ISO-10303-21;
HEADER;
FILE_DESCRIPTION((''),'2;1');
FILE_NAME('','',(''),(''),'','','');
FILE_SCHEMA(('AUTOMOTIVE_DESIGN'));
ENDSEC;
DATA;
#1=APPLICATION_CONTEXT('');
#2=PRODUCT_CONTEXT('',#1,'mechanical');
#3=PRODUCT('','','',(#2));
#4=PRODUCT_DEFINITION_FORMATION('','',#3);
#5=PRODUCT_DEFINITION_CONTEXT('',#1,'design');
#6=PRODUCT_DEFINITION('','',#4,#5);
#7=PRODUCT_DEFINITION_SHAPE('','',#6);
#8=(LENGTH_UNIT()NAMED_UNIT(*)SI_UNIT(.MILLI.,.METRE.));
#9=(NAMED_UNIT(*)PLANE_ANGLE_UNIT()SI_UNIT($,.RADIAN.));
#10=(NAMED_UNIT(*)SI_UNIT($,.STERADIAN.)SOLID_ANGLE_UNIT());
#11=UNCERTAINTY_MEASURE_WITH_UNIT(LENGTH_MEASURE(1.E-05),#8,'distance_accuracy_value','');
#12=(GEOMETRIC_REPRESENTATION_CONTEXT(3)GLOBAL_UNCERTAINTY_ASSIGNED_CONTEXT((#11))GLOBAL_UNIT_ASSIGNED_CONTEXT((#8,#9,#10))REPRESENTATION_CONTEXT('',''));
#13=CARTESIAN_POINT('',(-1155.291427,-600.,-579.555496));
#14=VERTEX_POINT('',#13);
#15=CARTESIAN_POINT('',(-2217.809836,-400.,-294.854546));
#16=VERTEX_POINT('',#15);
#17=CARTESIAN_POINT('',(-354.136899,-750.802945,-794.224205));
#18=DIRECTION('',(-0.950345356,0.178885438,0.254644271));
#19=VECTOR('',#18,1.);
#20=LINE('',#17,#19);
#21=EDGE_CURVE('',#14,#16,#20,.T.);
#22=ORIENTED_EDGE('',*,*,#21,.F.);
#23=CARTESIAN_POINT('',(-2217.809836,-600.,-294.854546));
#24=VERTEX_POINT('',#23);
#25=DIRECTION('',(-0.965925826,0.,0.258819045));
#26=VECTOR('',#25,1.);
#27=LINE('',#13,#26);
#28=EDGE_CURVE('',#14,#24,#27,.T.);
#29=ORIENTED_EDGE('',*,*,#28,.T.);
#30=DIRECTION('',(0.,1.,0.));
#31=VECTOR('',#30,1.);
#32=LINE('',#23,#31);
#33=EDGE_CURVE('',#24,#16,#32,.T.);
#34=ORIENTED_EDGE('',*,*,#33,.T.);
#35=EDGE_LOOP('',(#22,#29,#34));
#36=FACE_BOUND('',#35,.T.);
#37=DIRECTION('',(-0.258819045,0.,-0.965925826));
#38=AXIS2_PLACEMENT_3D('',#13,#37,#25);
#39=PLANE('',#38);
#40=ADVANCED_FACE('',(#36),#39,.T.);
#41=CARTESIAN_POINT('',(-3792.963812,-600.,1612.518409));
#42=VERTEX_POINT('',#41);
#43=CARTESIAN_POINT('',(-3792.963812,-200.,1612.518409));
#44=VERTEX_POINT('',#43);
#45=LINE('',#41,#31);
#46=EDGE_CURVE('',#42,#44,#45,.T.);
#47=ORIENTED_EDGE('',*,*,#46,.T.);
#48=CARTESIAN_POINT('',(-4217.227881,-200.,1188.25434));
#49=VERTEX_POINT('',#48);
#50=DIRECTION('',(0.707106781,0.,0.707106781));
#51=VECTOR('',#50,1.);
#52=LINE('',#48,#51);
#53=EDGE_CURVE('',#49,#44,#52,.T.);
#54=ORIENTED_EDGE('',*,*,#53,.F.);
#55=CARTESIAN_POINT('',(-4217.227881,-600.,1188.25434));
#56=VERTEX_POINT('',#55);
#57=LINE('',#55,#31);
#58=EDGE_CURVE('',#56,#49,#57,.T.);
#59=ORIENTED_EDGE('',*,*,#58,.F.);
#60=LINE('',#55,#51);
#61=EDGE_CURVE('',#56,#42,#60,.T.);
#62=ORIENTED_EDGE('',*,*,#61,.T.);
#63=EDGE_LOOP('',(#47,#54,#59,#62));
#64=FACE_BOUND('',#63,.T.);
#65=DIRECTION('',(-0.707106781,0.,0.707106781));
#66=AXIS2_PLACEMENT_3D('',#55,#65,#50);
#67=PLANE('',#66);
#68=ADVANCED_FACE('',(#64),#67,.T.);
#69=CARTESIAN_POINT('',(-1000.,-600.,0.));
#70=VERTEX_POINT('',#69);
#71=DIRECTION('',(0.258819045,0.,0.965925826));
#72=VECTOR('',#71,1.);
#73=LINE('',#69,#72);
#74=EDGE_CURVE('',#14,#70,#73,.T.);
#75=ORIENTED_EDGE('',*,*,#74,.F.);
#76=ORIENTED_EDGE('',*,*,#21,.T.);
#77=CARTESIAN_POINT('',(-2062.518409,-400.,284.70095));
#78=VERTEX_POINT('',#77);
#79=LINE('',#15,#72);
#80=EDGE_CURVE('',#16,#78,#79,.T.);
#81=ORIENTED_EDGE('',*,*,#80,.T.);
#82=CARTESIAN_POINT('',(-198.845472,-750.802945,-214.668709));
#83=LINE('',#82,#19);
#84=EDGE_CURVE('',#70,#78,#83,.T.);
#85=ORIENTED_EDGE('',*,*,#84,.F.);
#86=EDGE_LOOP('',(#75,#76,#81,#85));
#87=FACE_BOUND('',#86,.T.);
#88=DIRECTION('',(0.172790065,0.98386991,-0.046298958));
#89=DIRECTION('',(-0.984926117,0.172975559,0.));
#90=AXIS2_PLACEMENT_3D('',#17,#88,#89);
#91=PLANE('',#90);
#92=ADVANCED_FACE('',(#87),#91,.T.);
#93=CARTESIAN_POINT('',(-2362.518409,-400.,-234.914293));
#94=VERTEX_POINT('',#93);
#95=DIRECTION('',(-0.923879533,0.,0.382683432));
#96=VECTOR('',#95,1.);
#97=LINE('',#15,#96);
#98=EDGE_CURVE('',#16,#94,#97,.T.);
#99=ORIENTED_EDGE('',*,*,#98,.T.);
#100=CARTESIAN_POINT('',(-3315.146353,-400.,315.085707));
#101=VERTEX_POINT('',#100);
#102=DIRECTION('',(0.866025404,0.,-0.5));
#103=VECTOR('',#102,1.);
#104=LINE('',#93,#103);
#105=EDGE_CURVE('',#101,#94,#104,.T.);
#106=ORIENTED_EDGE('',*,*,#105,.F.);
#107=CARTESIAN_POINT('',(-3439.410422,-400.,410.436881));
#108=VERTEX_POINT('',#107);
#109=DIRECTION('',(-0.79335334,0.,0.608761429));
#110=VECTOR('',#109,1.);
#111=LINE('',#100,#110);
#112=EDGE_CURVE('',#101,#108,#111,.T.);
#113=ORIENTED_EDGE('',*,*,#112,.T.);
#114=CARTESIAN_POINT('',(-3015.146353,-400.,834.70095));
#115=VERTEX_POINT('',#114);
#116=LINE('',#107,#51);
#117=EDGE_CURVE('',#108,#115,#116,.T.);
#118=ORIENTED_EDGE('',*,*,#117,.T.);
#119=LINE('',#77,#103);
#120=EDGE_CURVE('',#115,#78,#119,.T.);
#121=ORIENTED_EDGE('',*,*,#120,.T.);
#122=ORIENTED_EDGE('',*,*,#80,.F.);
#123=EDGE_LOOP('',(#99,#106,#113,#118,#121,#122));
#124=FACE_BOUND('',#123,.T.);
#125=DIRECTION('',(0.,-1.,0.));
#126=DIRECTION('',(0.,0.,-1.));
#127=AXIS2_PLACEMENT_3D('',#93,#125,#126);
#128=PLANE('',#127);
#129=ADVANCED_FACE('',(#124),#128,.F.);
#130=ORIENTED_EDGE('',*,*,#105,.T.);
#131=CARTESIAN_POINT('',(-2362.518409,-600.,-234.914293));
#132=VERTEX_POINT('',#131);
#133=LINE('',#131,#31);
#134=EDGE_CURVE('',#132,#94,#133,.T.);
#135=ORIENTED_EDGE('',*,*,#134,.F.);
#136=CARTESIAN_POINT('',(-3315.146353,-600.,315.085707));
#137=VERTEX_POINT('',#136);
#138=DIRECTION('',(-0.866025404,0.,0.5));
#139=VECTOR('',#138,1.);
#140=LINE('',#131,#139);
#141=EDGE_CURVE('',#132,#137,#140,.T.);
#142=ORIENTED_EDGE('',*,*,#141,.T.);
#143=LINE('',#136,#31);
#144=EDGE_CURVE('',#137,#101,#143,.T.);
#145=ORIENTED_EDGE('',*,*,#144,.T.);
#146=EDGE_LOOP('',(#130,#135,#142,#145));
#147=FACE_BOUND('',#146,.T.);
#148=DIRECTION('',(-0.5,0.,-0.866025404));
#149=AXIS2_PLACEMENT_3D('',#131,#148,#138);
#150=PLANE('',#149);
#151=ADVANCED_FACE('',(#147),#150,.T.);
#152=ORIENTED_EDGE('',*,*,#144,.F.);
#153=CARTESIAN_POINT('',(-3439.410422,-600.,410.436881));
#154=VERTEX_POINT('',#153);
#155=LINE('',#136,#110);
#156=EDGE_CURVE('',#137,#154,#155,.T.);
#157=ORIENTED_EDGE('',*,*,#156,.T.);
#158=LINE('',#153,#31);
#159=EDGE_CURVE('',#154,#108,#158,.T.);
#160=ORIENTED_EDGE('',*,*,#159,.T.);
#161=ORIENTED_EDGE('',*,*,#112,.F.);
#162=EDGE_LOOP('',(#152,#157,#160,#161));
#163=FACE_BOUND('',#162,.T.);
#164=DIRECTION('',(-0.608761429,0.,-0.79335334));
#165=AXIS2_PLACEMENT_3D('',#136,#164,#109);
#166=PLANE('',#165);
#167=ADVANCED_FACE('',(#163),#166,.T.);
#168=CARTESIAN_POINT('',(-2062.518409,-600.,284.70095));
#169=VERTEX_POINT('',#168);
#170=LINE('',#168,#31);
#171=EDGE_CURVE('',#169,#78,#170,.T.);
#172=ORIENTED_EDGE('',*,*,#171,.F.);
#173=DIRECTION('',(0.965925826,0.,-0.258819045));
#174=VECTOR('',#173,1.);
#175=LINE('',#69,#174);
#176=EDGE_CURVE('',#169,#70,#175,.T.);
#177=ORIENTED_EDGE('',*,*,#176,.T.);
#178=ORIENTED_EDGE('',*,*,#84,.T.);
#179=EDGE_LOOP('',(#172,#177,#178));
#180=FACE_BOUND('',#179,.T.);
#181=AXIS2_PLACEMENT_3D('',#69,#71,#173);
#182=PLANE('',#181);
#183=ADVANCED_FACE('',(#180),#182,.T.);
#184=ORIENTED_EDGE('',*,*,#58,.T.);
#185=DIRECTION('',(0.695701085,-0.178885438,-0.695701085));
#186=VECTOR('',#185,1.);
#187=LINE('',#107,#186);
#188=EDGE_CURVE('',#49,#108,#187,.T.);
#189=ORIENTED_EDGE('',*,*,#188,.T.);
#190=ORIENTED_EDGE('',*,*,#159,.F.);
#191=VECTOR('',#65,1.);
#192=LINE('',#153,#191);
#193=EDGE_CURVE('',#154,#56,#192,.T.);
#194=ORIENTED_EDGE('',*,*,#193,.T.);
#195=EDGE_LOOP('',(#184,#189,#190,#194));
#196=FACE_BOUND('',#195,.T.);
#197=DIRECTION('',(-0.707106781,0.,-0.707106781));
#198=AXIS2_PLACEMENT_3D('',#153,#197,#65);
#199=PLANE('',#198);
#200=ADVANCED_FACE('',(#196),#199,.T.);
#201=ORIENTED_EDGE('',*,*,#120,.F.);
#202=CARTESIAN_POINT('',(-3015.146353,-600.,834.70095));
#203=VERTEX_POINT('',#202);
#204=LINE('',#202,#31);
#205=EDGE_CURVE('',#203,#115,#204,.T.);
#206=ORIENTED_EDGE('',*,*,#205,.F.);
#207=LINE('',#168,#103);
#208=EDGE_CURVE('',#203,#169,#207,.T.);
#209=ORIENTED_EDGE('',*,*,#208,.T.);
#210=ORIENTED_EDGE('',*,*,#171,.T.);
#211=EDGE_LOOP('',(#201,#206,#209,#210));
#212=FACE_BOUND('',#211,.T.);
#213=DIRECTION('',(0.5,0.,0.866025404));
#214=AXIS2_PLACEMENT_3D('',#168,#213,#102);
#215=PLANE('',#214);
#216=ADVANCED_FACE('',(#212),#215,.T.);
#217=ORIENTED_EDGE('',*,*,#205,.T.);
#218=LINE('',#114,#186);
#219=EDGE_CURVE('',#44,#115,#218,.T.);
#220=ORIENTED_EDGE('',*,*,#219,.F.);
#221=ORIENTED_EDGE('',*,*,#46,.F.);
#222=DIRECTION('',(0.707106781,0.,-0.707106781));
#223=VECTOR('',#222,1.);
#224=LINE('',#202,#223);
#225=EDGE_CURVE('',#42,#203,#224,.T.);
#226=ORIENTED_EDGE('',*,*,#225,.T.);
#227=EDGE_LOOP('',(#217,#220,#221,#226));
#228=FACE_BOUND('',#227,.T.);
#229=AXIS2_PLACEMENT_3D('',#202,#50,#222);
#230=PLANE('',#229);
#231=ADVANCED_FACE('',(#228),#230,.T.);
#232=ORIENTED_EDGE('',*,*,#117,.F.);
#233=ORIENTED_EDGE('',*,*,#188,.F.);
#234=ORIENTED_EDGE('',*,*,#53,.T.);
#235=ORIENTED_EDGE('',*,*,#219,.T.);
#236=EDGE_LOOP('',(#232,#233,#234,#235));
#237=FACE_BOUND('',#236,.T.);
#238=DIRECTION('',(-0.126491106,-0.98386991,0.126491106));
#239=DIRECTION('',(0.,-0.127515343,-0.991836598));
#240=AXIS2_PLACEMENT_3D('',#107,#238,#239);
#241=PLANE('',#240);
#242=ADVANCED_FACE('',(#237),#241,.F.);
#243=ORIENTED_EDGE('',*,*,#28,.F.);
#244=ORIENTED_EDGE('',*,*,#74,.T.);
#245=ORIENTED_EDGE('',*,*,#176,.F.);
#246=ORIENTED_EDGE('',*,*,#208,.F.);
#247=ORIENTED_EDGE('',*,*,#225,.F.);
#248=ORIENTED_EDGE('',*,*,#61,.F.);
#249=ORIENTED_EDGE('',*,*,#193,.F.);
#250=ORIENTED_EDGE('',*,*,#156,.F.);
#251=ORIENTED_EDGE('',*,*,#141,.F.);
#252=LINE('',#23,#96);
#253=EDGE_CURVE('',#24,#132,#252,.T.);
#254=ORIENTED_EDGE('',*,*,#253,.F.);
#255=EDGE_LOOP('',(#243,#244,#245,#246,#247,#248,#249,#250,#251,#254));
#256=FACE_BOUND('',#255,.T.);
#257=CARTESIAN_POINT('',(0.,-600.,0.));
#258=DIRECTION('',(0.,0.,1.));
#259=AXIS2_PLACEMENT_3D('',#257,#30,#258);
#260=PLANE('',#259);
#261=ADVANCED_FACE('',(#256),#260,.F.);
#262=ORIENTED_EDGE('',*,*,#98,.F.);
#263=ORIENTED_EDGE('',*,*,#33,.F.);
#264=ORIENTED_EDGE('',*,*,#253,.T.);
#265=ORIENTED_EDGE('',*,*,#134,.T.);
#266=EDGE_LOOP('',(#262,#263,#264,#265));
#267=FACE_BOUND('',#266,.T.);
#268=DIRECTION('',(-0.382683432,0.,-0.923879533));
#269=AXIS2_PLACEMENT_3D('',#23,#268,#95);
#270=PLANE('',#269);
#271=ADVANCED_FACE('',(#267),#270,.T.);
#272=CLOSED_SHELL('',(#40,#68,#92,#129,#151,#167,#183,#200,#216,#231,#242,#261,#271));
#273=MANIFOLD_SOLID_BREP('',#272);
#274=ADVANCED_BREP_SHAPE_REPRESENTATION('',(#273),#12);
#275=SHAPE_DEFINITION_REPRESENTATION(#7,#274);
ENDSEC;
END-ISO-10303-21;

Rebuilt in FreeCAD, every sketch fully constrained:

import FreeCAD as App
import Part
import Sketcher
from FreeCAD import Vector
Q = App.Units.Quantity

doc = App.newDocument("Part")
params = doc.addObject("Spreadsheet::Sheet", "Params")
for row, (alias, value) in enumerate([
    ("sketch1_width", "1000 mm"),
    ("sketch1_height", "600 mm"),
    ("sketch1_length", "1100 mm"),
    ("sketch1_length2", "600 mm"),
    ("pad1_length", "600 mm"),
    ("sketch2_width", "1000 mm"),
    ("sketch2_height", "600 mm"),
    ("sketch2_length", "600 mm"),
    ("pocket1_length", "600 mm"),
    ("sketch3_width", "1099.999999 mm"),
    ("sketch3_height", "599.999999 mm"),
    ("sketch3_height2", "400 mm"),
    ("pocket2_length", "600 mm"),
    ("sketch4_width", "1100 mm"),
    ("sketch4_height", "400 mm"),
    ("pocket3_length", "600 mm"),
    ("sketch5_height", "400 mm"),
    ("pocket4_length", "600 mm"),
    ("sketch6_length", "600 mm"),
    ("pocket5_length", "400 mm"),
    ("sketch7_width", "1099.999999 mm"),
    ("sketch7_height", "400 mm"),
    ("sketch7_height2", "200 mm"),
    ("pocket6_length", "600 mm"),
], start=1):
    params.set(f"A{row}", alias)
    params.set(f"B{row}", "=" + value)
    params.setAlias(f"B{row}", alias)

body = doc.addObject("PartDesign::Body", "Body")

sketch1 = body.newObject("Sketcher::SketchObject", "Sketch")
sketch1.AttachmentSupport = (doc.getObject("XZ_Plane"), [""])
sketch1.MapMode = "FlatFace"
sketch1.addGeometry([
    Part.LineSegment(Vector(-1000, 0, 0), Vector(0, 0, 0)),
    Part.LineSegment(Vector(0, 0, 0), Vector(0, -600, 0)),
    Part.LineSegment(Vector(0, -600, 0), Vector(-1000, -600, 0)),
    Part.LineSegment(Vector(-1000, -600, 0), Vector(-1155.291427, -579.555496, 0)),
    Part.LineSegment(Vector(-1155.291427, -579.555496, 0), Vector(-2217.809836, -294.854546, 0)),
    Part.LineSegment(Vector(-2217.809836, -294.854546, 0), Vector(-2362.518409, -234.914293, 0)),
    Part.LineSegment(Vector(-2362.518409, -234.914293, 0), Vector(-3315.146353, 315.085707, 0)),
    Part.LineSegment(Vector(-3315.146353, 315.085707, 0), Vector(-3439.410422, 410.436881, 0)),
    Part.LineSegment(Vector(-3439.410422, 410.436881, 0), Vector(-4217.227881, 1188.25434, 0)),
    Part.LineSegment(Vector(-4217.227881, 1188.25434, 0), Vector(-3792.963812, 1612.518409, 0)),
    Part.LineSegment(Vector(-3792.963812, 1612.518409, 0), Vector(-3015.146353, 834.70095, 0)),
    Part.LineSegment(Vector(-3015.146353, 834.70095, 0), Vector(-2062.518409, 284.70095, 0)),
    Part.LineSegment(Vector(-2062.518409, 284.70095, 0), Vector(-1000, 0, 0)),
], False)
sketch1.addConstraint([
    Sketcher.Constraint("Coincident", 0, 2, 1, 1),
    Sketcher.Constraint("Coincident", 1, 2, 2, 1),
    Sketcher.Constraint("Coincident", 2, 2, 3, 1),
    Sketcher.Constraint("Coincident", 3, 2, 4, 1),
    Sketcher.Constraint("Coincident", 4, 2, 5, 1),
    Sketcher.Constraint("Coincident", 5, 2, 6, 1),
    Sketcher.Constraint("Coincident", 6, 2, 7, 1),
    Sketcher.Constraint("Coincident", 7, 2, 8, 1),
    Sketcher.Constraint("Coincident", 8, 2, 9, 1),
    Sketcher.Constraint("Coincident", 9, 2, 10, 1),
    Sketcher.Constraint("Coincident", 10, 2, 11, 1),
    Sketcher.Constraint("Coincident", 11, 2, 12, 1),
    Sketcher.Constraint("Coincident", 12, 2, 0, 1),
    Sketcher.Constraint("Horizontal", 0),
    Sketcher.Constraint("Vertical", 1),
    Sketcher.Constraint("Horizontal", 2),
    Sketcher.Constraint("Coincident", 0, 2, -1, 1),
    Sketcher.Constraint("Perpendicular", 8, 9),
    Sketcher.Constraint("Perpendicular", 9, 10),
    Sketcher.Constraint("Parallel", 6, 11),
    Sketcher.Constraint("Parallel", 4, 12),
    Sketcher.Constraint("Vertical", 2, 2, 12, 2),
    Sketcher.Constraint("Equal", 3, 5),
    Sketcher.Constraint("Equal", 4, 6),
    Sketcher.Constraint("Equal", 5, 7),
    Sketcher.Constraint("Equal", 6, 8),
    Sketcher.Constraint("Equal", 8, 10),
    Sketcher.Constraint("Equal", 10, 11),
    Sketcher.Constraint("Equal", 11, 12),
    Sketcher.Constraint("DistanceX", 0, 1, 0, 2, Q("1000 mm")),
    Sketcher.Constraint("DistanceY", 1, 2, 1, 1, Q("600 mm")),
    Sketcher.Constraint("Angle", 4, Q("165 deg")),
    Sketcher.Constraint("Angle", 6, Q("150 deg")),
    Sketcher.Constraint("Angle", 8, Q("135 deg")),
    Sketcher.Constraint("Distance", 4, Q("1100 mm")),
    Sketcher.Constraint("Distance", 9, Q("600 mm")),
    Sketcher.Constraint("Angle", 3, Q("172.5 deg")),
    Sketcher.Constraint("Angle", 5, Q("157.5 deg")),
])
sketch1.setExpression("Constraints[29]", "Params.sketch1_width")
sketch1.setExpression("Constraints[30]", "Params.sketch1_height")
sketch1.setExpression("Constraints[34]", "Params.sketch1_length")
sketch1.setExpression("Constraints[35]", "Params.sketch1_length2")
pad1 = body.newObject("PartDesign::Pad", "Pad")
pad1.Profile = sketch1
pad1.setExpression("Length", "Params.pad1_length")

sketch2 = body.newObject("Sketcher::SketchObject", "Sketch001")
sketch2.AttachmentSupport = (doc.getObject("XZ_Plane"), [""])
sketch2.MapMode = "FlatFace"
sketch2.addGeometry([
    Part.LineSegment(Vector(-1155.291427, -579.555496, 0), Vector(-1000, 0, 0)),
    Part.LineSegment(Vector(-1000, 0, 0), Vector(0, 0, 0)),
    Part.LineSegment(Vector(0, 0, 0), Vector(0, -600, 0)),
    Part.LineSegment(Vector(0, -600, 0), Vector(-1000, -600, 0)),
    Part.LineSegment(Vector(-1000, -600, 0), Vector(-1155.291427, -579.555496, 0)),
], False)
sketch2.addConstraint([
    Sketcher.Constraint("Coincident", 0, 2, 1, 1),
    Sketcher.Constraint("Coincident", 1, 2, 2, 1),
    Sketcher.Constraint("Coincident", 2, 2, 3, 1),
    Sketcher.Constraint("Coincident", 3, 2, 4, 1),
    Sketcher.Constraint("Coincident", 4, 2, 0, 1),
    Sketcher.Constraint("Horizontal", 1),
    Sketcher.Constraint("Vertical", 2),
    Sketcher.Constraint("Horizontal", 3),
    Sketcher.Constraint("Coincident", 1, 2, -1, 1),
    Sketcher.Constraint("Vertical", 0, 2, 3, 2),
    Sketcher.Constraint("DistanceX", 1, 1, 1, 2, Q("1000 mm")),
    Sketcher.Constraint("DistanceY", 2, 2, 2, 1, Q("600 mm")),
    Sketcher.Constraint("Angle", 0, Q("75 deg")),
    Sketcher.Constraint("Distance", 0, Q("600 mm")),
])
sketch2.setExpression("Constraints[10]", "Params.sketch2_width")
sketch2.setExpression("Constraints[11]", "Params.sketch2_height")
sketch2.setExpression("Constraints[13]", "Params.sketch2_length")
pocket1 = body.newObject("PartDesign::Pocket", "Pocket")
pocket1.Profile = sketch2
pocket1.setExpression("Length", "Params.pocket1_length")
pocket1.Reversed = True

sketch3 = body.newObject("Sketcher::SketchObject", "Sketch002")
sketch3.Placement = App.Placement(Vector(-66.987298, 0, -250), App.Rotation(Vector(0.965925826, 0, -0.258819045), Vector(0, 0.999999999, 0), Vector(0.258819045, 0, 0.965925826), "ZXY"))
sketch3.addGeometry([
    Part.LineSegment(Vector(-2065.925825, -400, 0), Vector(-965.925826, -599.999999, 0)),
    Part.LineSegment(Vector(-965.925826, -599.999999, 0), Vector(-965.925826, 0, 0)),
    Part.LineSegment(Vector(-965.925826, 0, 0), Vector(-2065.925825, 0, 0)),
    Part.LineSegment(Vector(-2065.925825, 0, 0), Vector(-2065.925825, -400, 0)),
], False)
sketch3.addConstraint([
    Sketcher.Constraint("Coincident", 0, 2, 1, 1),
    Sketcher.Constraint("Coincident", 1, 2, 2, 1),
    Sketcher.Constraint("Coincident", 2, 2, 3, 1),
    Sketcher.Constraint("Coincident", 3, 2, 0, 1),
    Sketcher.Constraint("Vertical", 1),
    Sketcher.Constraint("Horizontal", 2),
    Sketcher.Constraint("Vertical", 3),
    Sketcher.Constraint("PointOnObject", 1, 2, -1),
    Sketcher.Constraint("DistanceX", 2, 2, 2, 1, Q("1099.999999 mm")),
    Sketcher.Constraint("DistanceY", 1, 1, 1, 2, Q("599.999999 mm")),
    Sketcher.Constraint("DistanceY", 3, 2, 3, 1, Q("400 mm")),
    Sketcher.Constraint("DistanceX", 0, 2, -1, 1, Q("965.925826 mm")),
])
sketch3.setExpression("Constraints[8]", "Params.sketch3_width")
sketch3.setExpression("Constraints[9]", "Params.sketch3_height")
sketch3.setExpression("Constraints[10]", "Params.sketch3_height2")
pocket2 = body.newObject("PartDesign::Pocket", "Pocket001")
pocket2.Profile = sketch3
pocket2.setExpression("Length", "Params.pocket2_length")

sketch4 = body.newObject("Sketcher::SketchObject", "Sketch003")
sketch4.Placement = App.Placement(Vector(-392.350475, 0, -679.570957), App.Rotation(Vector(0.866025404, 0, -0.5), Vector(0, 1, 0), Vector(0.5, 0, 0.866025404), "ZXY"))
sketch4.addGeometry([
    Part.LineSegment(Vector(-3028.543814, 0, 0), Vector(-3028.543814, -400, 0)),
    Part.LineSegment(Vector(-3028.543814, -400, 0), Vector(-1928.543813, -400, 0)),
    Part.LineSegment(Vector(-1928.543813, -400, 0), Vector(-1928.543813, 0, 0)),
    Part.LineSegment(Vector(-1928.543813, 0, 0), Vector(-3028.543814, 0, 0)),
], False)
sketch4.addConstraint([
    Sketcher.Constraint("Coincident", 0, 2, 1, 1),
    Sketcher.Constraint("Coincident", 1, 2, 2, 1),
    Sketcher.Constraint("Coincident", 2, 2, 3, 1),
    Sketcher.Constraint("Coincident", 3, 2, 0, 1),
    Sketcher.Constraint("Vertical", 0),
    Sketcher.Constraint("Horizontal", 1),
    Sketcher.Constraint("Vertical", 2),
    Sketcher.Constraint("Horizontal", 3),
    Sketcher.Constraint("PointOnObject", 2, 2, -1),
    Sketcher.Constraint("DistanceX", 1, 1, 1, 2, Q("1100 mm")),
    Sketcher.Constraint("DistanceY", 0, 2, 0, 1, Q("400 mm")),
    Sketcher.Constraint("DistanceX", 0, 2, -1, 1, Q("3028.543814 mm")),
])
sketch4.setExpression("Constraints[9]", "Params.sketch4_width")
sketch4.setExpression("Constraints[10]", "Params.sketch4_height")
pocket3 = body.newObject("PartDesign::Pocket", "Pocket002")
pocket3.Profile = sketch4
pocket3.setExpression("Length", "Params.pocket3_length")

sketch5 = body.newObject("Sketcher::SketchObject", "Sketch004")
sketch5.Placement = App.Placement(Vector(-429.037555, 0, -1035.788285), App.Rotation(Vector(-0.923879533, 0, 0.382683432), Vector(0, 1.000000001, 0), Vector(-0.382683432, 0, -0.923879533), "ZXY"))
sketch5.addGeometry([
    Part.LineSegment(Vector(1936.153166, 0, 0), Vector(1936.153166, -400, 0)),
    Part.LineSegment(Vector(1936.153166, -400, 0), Vector(2092.784597, -400, 0)),
    Part.LineSegment(Vector(2092.784597, -400, 0), Vector(2092.784597, 0, 0)),
    Part.LineSegment(Vector(2092.784597, 0, 0), Vector(1936.153166, 0, 0)),
], False)
sketch5.addConstraint([
    Sketcher.Constraint("Coincident", 0, 2, 1, 1),
    Sketcher.Constraint("Coincident", 1, 2, 2, 1),
    Sketcher.Constraint("Coincident", 2, 2, 3, 1),
    Sketcher.Constraint("Coincident", 3, 2, 0, 1),
    Sketcher.Constraint("Vertical", 0),
    Sketcher.Constraint("Horizontal", 1),
    Sketcher.Constraint("Vertical", 2),
    Sketcher.Constraint("Horizontal", 3),
    Sketcher.Constraint("PointOnObject", 2, 2, -1),
    Sketcher.Constraint("DistanceY", 0, 2, 0, 1, Q("400 mm")),
    Sketcher.Constraint("DistanceX", 1, 1, 1, 2, Q("156.631431 mm")),
    Sketcher.Constraint("DistanceX", -1, 1, 0, 2, Q("1936.153166 mm")),
])
sketch5.setExpression("Constraints[9]", "Params.sketch5_height")
pocket4 = body.newObject("PartDesign::Pocket", "Pocket003")
pocket4.Profile = sketch5
pocket4.setExpression("Length", "Params.pocket4_length")

sketch6 = body.newObject("Sketcher::SketchObject", "Sketch005")
sketch6.AttachmentSupport = (doc.getObject("XZ_Plane"), [""])
sketch6.MapMode = "FlatFace"
sketch6.addGeometry([
    Part.LineSegment(Vector(-3439.410422, 410.436881, 0), Vector(-3015.146353, 834.70095, 0)),
    Part.LineSegment(Vector(-3015.146353, 834.70095, 0), Vector(-3315.146353, 315.085707, 0)),
    Part.LineSegment(Vector(-3315.146353, 315.085707, 0), Vector(-3439.410422, 410.436881, 0)),
], False)
sketch6.addConstraint([
    Sketcher.Constraint("Coincident", 0, 2, 1, 1),
    Sketcher.Constraint("Coincident", 1, 2, 2, 1),
    Sketcher.Constraint("Coincident", 2, 2, 0, 1),
    Sketcher.Constraint("Equal", 0, 1),
    Sketcher.Constraint("Angle", 0, Q("45 deg")),
    Sketcher.Constraint("Angle", 1, Q("-120 deg")),
    Sketcher.Constraint("Distance", 0, Q("600 mm")),
    Sketcher.Constraint("DistanceY", -1, 1, 0, 2, Q("834.70095 mm")),
    Sketcher.Constraint("DistanceX", 2, 2, -1, 1, Q("3439.410422 mm")),
])
sketch6.setExpression("Constraints[6]", "Params.sketch6_length")
pocket5 = body.newObject("PartDesign::Pocket", "Pocket004")
pocket5.Profile = sketch6
pocket5.setExpression("Length", "Params.pocket5_length")
pocket5.Reversed = True

sketch7 = body.newObject("Sketcher::SketchObject", "Sketch006")
sketch7.Placement = App.Placement(Vector(-1090.222702, 0, -1090.222702), App.Rotation(Vector(0.707106781, 0, -0.707106781), Vector(0, 0.999999999, 0), Vector(0.707106781, 0, 0.707106781), "ZXY"))
sketch7.addGeometry([
    Part.LineSegment(Vector(-3822.253132, -200, 0), Vector(-2722.253133, -400, 0)),
    Part.LineSegment(Vector(-2722.253133, -400, 0), Vector(-2722.253133, 0, 0)),
    Part.LineSegment(Vector(-2722.253133, 0, 0), Vector(-3822.253132, 0, 0)),
    Part.LineSegment(Vector(-3822.253132, 0, 0), Vector(-3822.253132, -200, 0)),
], False)
sketch7.addConstraint([
    Sketcher.Constraint("Coincident", 0, 2, 1, 1),
    Sketcher.Constraint("Coincident", 1, 2, 2, 1),
    Sketcher.Constraint("Coincident", 2, 2, 3, 1),
    Sketcher.Constraint("Coincident", 3, 2, 0, 1),
    Sketcher.Constraint("Vertical", 1),
    Sketcher.Constraint("Horizontal", 2),
    Sketcher.Constraint("Vertical", 3),
    Sketcher.Constraint("PointOnObject", 1, 2, -1),
    Sketcher.Constraint("DistanceX", 2, 2, 2, 1, Q("1099.999999 mm")),
    Sketcher.Constraint("DistanceY", 1, 1, 1, 2, Q("400 mm")),
    Sketcher.Constraint("DistanceY", 3, 2, 3, 1, Q("200 mm")),
    Sketcher.Constraint("DistanceX", 0, 2, -1, 1, Q("2722.253133 mm")),
])
sketch7.setExpression("Constraints[8]", "Params.sketch7_width")
sketch7.setExpression("Constraints[9]", "Params.sketch7_height")
sketch7.setExpression("Constraints[10]", "Params.sketch7_height2")
pocket6 = body.newObject("PartDesign::Pocket", "Pocket005")
pocket6.Profile = sketch7
pocket6.setExpression("Length", "Params.pocket6_length")

doc.recompute()
